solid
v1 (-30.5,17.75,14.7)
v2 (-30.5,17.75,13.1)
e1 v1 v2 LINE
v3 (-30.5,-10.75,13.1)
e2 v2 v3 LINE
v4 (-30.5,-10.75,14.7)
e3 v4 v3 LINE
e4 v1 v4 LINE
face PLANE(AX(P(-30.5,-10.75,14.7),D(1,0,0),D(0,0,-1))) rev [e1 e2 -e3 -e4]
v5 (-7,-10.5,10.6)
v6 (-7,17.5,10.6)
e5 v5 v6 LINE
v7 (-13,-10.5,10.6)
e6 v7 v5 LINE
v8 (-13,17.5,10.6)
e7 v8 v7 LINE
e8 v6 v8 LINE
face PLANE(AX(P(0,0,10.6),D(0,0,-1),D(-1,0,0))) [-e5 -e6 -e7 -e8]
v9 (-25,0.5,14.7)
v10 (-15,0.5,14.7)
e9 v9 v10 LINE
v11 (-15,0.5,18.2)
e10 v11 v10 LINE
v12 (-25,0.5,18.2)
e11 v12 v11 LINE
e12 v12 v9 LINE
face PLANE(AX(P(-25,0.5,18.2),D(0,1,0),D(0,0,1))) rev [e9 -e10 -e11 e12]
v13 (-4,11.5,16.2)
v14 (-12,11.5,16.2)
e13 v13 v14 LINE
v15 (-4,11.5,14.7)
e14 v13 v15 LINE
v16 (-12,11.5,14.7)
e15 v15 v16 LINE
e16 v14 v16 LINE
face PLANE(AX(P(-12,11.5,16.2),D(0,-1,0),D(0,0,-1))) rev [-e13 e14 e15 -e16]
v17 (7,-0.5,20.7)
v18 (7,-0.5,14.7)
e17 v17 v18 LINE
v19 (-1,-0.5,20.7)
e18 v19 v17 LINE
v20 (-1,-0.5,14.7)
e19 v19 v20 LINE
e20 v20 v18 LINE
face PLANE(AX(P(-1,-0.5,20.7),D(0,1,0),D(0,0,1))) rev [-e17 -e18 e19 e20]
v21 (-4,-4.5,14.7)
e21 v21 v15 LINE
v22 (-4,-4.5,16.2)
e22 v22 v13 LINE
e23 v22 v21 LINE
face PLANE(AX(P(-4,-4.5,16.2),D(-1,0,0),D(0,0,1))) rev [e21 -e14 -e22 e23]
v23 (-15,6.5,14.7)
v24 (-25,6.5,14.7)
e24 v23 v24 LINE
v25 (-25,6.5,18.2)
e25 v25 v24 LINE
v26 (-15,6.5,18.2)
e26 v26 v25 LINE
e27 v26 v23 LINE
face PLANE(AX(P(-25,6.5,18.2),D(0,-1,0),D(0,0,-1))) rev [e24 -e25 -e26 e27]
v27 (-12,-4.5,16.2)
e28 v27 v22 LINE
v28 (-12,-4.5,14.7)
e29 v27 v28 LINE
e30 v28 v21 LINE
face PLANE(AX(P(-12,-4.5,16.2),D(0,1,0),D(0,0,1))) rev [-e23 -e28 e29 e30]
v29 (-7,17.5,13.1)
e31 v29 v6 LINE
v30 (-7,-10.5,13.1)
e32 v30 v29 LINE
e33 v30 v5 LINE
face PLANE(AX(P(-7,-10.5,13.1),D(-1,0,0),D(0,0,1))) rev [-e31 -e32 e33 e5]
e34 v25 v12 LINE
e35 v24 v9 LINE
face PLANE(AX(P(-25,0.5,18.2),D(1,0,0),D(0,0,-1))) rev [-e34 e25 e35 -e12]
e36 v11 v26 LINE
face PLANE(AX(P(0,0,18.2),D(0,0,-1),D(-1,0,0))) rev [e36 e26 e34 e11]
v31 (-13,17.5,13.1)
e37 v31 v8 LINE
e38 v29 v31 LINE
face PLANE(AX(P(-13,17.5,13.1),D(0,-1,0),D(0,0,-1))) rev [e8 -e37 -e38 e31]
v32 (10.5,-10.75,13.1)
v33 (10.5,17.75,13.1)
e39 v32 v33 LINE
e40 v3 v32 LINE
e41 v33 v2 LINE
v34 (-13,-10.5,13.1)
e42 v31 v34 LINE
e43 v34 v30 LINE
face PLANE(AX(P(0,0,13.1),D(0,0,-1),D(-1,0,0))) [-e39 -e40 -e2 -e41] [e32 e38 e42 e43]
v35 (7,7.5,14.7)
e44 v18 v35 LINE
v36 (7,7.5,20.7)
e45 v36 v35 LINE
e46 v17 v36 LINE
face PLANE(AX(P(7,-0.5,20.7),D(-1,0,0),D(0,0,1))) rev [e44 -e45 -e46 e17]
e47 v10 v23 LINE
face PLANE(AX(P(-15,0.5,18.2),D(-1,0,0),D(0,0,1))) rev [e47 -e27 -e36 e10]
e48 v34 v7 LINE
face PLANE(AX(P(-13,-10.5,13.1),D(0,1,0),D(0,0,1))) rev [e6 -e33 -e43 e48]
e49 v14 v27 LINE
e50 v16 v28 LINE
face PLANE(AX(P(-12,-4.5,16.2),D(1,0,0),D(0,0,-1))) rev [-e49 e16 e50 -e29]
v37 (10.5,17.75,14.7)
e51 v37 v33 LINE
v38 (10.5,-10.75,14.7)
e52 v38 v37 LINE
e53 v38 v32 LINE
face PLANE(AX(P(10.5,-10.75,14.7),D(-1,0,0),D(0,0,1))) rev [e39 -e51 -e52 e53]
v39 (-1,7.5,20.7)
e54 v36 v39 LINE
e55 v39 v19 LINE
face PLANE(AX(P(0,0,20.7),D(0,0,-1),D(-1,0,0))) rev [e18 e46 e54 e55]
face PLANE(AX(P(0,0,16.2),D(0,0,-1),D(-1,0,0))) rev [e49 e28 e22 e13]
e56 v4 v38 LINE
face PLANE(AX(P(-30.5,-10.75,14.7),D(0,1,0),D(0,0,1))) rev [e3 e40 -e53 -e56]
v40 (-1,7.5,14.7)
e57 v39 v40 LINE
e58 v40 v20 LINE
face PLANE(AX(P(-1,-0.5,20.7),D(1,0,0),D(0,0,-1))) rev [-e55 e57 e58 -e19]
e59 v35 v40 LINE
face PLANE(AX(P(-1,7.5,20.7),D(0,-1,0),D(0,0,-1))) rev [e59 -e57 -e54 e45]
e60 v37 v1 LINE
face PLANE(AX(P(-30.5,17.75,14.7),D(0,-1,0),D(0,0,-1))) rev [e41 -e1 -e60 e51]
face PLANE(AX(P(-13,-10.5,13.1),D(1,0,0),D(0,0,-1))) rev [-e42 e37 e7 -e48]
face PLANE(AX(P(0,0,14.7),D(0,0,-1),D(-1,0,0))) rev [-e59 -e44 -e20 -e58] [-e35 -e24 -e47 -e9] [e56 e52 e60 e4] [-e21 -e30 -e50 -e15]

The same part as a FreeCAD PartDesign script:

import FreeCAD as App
import Part
import Sketcher

V = App.Vector


def add_polygon(sketch, points):
    """Adds a closed chain of lines whose ends are joined by coincident constraints."""
    first, n = sketch.GeometryCount, len(points)
    for a, b in zip(points, points[1:] + points[:1]):
        sketch.addGeometry(Part.LineSegment(App.Vector(*a, 0), App.Vector(*b, 0)), False)
    for i in range(n):
        sketch.addConstraint(Sketcher.Constraint("Coincident", first + i, 2, first + (i + 1) % n, 1))

doc = App.newDocument("Part")
params = doc.addObject("Spreadsheet::Sheet", "Params")
for row, (alias, value) in enumerate([
    ("sketch1_width", "41 mm"),
    ("sketch1_height", "28.5 mm"),
    ("pad1_length", "1.6 mm"),
    ("sketch2_width", "6 mm"),
    ("sketch2_height", "28 mm"),
    ("pad2_length", "2.5 mm"),
    ("sketch3_width", "8 mm"),
    ("pad3_length", "6 mm"),
    ("sketch4_width", "10 mm"),
    ("sketch4_height", "6 mm"),
    ("pad4_length", "3.5 mm"),
    ("sketch5_width", "8 mm"),
    ("sketch5_height", "16 mm"),
    ("pad5_length", "1.5 mm"),
], start=1):
    params.set(f"A{row}", alias)
    params.set(f"B{row}", "=" + value)
    params.setAlias(f"B{row}", alias)

body = doc.addObject("PartDesign::Body", "Body")

# Sketch on XY plane
sketch1 = doc.addObject("Sketcher::SketchObject", "Sketch")
body.addObject(sketch1)
sketch1.AttachmentSupport = (doc.XY_Plane, [""])
sketch1.MapMode = "FlatFace"
sketch1.AttachmentOffset = App.Placement(V(0, 0, 13.1), App.Rotation())
add_polygon(sketch1, [(-30, 18), (-30, -11), (10, -11), (10, 18)])  # lines 0-3
sketch1.addConstraint([
    Sketcher.Constraint("Vertical", 0),
    Sketcher.Constraint("Horizontal", 1),
    Sketcher.Constraint("Vertical", 2),
    Sketcher.Constraint("Horizontal", 3),
    Sketcher.Constraint("DistanceX", 1, 1, 1, 2, 41.0),
    Sketcher.Constraint("DistanceY", 0, 2, 0, 1, 28.5),
    Sketcher.Constraint("DistanceX", 0, 2, -1, 1, 30.5),
    Sketcher.Constraint("DistanceY", 0, 2, -1, 1, 10.75),
])
sketch1.setExpression("Constraints[8]", "Params.sketch1_width")
sketch1.setExpression("Constraints[9]", "Params.sketch1_height")
pad1 = doc.addObject("PartDesign::Pad", "Pad")
body.addObject(pad1)
pad1.Profile = sketch1
pad1.setExpression("Length", "Params.pad1_length")

# Sketch on XY plane
sketch2 = doc.addObject("Sketcher::SketchObject", "Sketch001")
body.addObject(sketch2)
sketch2.AttachmentSupport = (doc.XY_Plane, [""])
sketch2.MapMode = "FlatFace"
sketch2.AttachmentOffset = App.Placement(V(0, 0, 10.6), App.Rotation())
add_polygon(sketch2, [(-13, 18), (-13, -10), (-7, -10), (-7, 18)])  # lines 0-3
sketch2.addConstraint([
    Sketcher.Constraint("Vertical", 0),
    Sketcher.Constraint("Horizontal", 1),
    Sketcher.Constraint("Vertical", 2),
    Sketcher.Constraint("Horizontal", 3),
    Sketcher.Constraint("DistanceX", 1, 1, 1, 2, 6.0),
    Sketcher.Constraint("DistanceY", 0, 2, 0, 1, 28.0),
    Sketcher.Constraint("DistanceX", 0, 2, -1, 1, 13.0),
    Sketcher.Constraint("DistanceY", 0, 2, -1, 1, 10.5),
])
sketch2.setExpression("Constraints[8]", "Params.sketch2_width")
sketch2.setExpression("Constraints[9]", "Params.sketch2_height")
pad2 = doc.addObject("PartDesign::Pad", "Pad001")
body.addObject(pad2)
pad2.Profile = sketch2
pad2.setExpression("Length", "Params.pad2_length")

# Sketch on XY plane
sketch3 = doc.addObject("Sketcher::SketchObject", "Sketch002")
body.addObject(sketch3)
sketch3.AttachmentSupport = (doc.XY_Plane, [""])
sketch3.MapMode = "FlatFace"
sketch3.AttachmentOffset = App.Placement(V(0, 0, 14.7), App.Rotation())
add_polygon(sketch3, [(-1, 8), (-1, 0), (7, 0), (7, 8)])  # lines 0-3
sketch3.addConstraint([
    Sketcher.Constraint("Vertical", 0),
    Sketcher.Constraint("Horizontal", 1),
    Sketcher.Constraint("Vertical", 2),
    Sketcher.Constraint("Horizontal", 3),
    Sketcher.Constraint("Equal", 3, 0),
    Sketcher.Constraint("DistanceX", 1, 1, 1, 2, 8.0),
    Sketcher.Constraint("DistanceX", 0, 2, -1, 1, 1.0),
    Sketcher.Constraint("DistanceY", 0, 2, -1, 1, 0.5),
])
sketch3.setExpression("Constraints[9]", "Params.sketch3_width")
pad3 = doc.addObject("PartDesign::Pad", "Pad002")
body.addObject(pad3)
pad3.Profile = sketch3
pad3.setExpression("Length", "Params.pad3_length")

# Sketch on XY plane
sketch4 = doc.addObject("Sketcher::SketchObject", "Sketch003")
body.addObject(sketch4)
sketch4.AttachmentSupport = (doc.XY_Plane, [""])
sketch4.MapMode = "FlatFace"
sketch4.AttachmentOffset = App.Placement(V(0, 0, 14.7), App.Rotation())
add_polygon(sketch4, [(-25, 6), (-25, 0), (-15, 0), (-15, 6)])  # lines 0-3
sketch4.addConstraint([
    Sketcher.Constraint("Vertical", 0),
    Sketcher.Constraint("Horizontal", 1),
    Sketcher.Constraint("Vertical", 2),
    Sketcher.Constraint("Horizontal", 3),
    Sketcher.Constraint("DistanceX", 1, 1, 1, 2, 10.0),
    Sketcher.Constraint("DistanceY", 0, 2, 0, 1, 6.0),
    Sketcher.Constraint("DistanceX", 0, 2, -1, 1, 25.0),
    Sketcher.Constraint("DistanceY", -1, 1, 0, 2, 0.5),
])
sketch4.setExpression("Constraints[8]", "Params.sketch4_width")
sketch4.setExpression("Constraints[9]", "Params.sketch4_height")
pad4 = doc.addObject("PartDesign::Pad", "Pad003")
body.addObject(pad4)
pad4.Profile = sketch4
pad4.setExpression("Length", "Params.pad4_length")

# Sketch on XY plane
sketch5 = doc.addObject("Sketcher::SketchObject", "Sketch004")
body.addObject(sketch5)
sketch5.AttachmentSupport = (doc.XY_Plane, [""])
sketch5.MapMode = "FlatFace"
sketch5.AttachmentOffset = App.Placement(V(0, 0, 14.7), App.Rotation())
add_polygon(sketch5, [(-12, 12), (-12, -4), (-4, -4), (-4, 12)])  # lines 0-3
sketch5.addConstraint([
    Sketcher.Constraint("Vertical", 0),
    Sketcher.Constraint("Horizontal", 1),
    Sketcher.Constraint("Vertical", 2),
    Sketcher.Constraint("Horizontal", 3),
    Sketcher.Constraint("DistanceX", 1, 1, 1, 2, 8.0),
    Sketcher.Constraint("DistanceY", 0, 2, 0, 1, 16.0),
    Sketcher.Constraint("DistanceX", 0, 2, -1, 1, 12.0),
    Sketcher.Constraint("DistanceY", 0, 2, -1, 1, 4.5),
])
sketch5.setExpression("Constraints[8]", "Params.sketch5_width")
sketch5.setExpression("Constraints[9]", "Params.sketch5_height")
pad5 = doc.addObject("PartDesign::Pad", "Pad004")
body.addObject(pad5)
pad5.Profile = sketch5
pad5.setExpression("Length", "Params.pad5_length")

doc.recompute()
